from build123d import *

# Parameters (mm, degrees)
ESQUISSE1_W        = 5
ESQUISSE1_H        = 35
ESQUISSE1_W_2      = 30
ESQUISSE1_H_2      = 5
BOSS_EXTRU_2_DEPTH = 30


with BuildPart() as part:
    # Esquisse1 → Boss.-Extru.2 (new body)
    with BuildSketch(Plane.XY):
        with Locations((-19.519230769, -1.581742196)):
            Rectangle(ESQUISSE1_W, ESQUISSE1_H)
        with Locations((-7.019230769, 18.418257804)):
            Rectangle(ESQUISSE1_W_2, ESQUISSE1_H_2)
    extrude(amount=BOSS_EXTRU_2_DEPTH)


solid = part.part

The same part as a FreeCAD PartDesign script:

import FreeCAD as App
import Part
import Sketcher

V = App.Vector

doc = App.newDocument("Part")
body = doc.addObject("PartDesign::Body", "Body")

sketch1 = body.newObject("Sketcher::SketchObject", "Sketch")
sketch1.AttachmentSupport = (doc.getObject("XY_Plane"), [""])
sketch1.MapMode = "FlatFace"
sketch1.addGeometry([
    Part.LineSegment(V(-22.019231, -19.081742, 0), V(-17.019231, -19.081742, 0)),
    Part.LineSegment(V(-17.019231, -19.081742, 0), V(-17.019231, 15.918258, 0)),
    Part.LineSegment(V(-17.019231, 15.918258, 0), V(7.980769, 15.918258, 0)),
    Part.LineSegment(V(7.980769, 15.918258, 0), V(7.980769, 20.918258, 0)),
    Part.LineSegment(V(7.980769, 20.918258, 0), V(-22.019231, 20.918258, 0)),
    Part.LineSegment(V(-22.019231, 20.918258, 0), V(-22.019231, -19.081742, 0)),
], False)
sketch1.addConstraint([
    Sketcher.Constraint("Coincident", 0, 2, 1, 1),
    Sketcher.Constraint("Coincident", 1, 2, 2, 1),
    Sketcher.Constraint("Coincident", 2, 2, 3, 1),
    Sketcher.Constraint("Coincident", 3, 2, 4, 1),
    Sketcher.Constraint("Coincident", 4, 2, 5, 1),
    Sketcher.Constraint("Coincident", 5, 2, 0, 1),
    Sketcher.Constraint("Horizontal", 0),
    Sketcher.Constraint("Vertical", 1),
    Sketcher.Constraint("Horizontal", 2),
    Sketcher.Constraint("Vertical", 3),
    Sketcher.Constraint("Horizontal", 4),
    Sketcher.Constraint("Vertical", 5),
    Sketcher.Constraint("Equal", 0, 3),
    Sketcher.Constraint("DistanceX", 0, 1, 0, 2, 5.0),
    Sketcher.Constraint("DistanceX", 2, 1, 2, 2, 25.0),
    Sketcher.Constraint("DistanceY", 1, 1, 1, 2, 35.0),
    Sketcher.Constraint("DistanceX", 0, 2, -1, 1, 17.019231),
    Sketcher.Constraint("DistanceY", 0, 2, -1, 1, 19.081742),
])
pad1 = body.newObject("PartDesign::Pad", "Pad")
pad1.Profile = sketch1
pad1.Length = 30

doc.recompute()
